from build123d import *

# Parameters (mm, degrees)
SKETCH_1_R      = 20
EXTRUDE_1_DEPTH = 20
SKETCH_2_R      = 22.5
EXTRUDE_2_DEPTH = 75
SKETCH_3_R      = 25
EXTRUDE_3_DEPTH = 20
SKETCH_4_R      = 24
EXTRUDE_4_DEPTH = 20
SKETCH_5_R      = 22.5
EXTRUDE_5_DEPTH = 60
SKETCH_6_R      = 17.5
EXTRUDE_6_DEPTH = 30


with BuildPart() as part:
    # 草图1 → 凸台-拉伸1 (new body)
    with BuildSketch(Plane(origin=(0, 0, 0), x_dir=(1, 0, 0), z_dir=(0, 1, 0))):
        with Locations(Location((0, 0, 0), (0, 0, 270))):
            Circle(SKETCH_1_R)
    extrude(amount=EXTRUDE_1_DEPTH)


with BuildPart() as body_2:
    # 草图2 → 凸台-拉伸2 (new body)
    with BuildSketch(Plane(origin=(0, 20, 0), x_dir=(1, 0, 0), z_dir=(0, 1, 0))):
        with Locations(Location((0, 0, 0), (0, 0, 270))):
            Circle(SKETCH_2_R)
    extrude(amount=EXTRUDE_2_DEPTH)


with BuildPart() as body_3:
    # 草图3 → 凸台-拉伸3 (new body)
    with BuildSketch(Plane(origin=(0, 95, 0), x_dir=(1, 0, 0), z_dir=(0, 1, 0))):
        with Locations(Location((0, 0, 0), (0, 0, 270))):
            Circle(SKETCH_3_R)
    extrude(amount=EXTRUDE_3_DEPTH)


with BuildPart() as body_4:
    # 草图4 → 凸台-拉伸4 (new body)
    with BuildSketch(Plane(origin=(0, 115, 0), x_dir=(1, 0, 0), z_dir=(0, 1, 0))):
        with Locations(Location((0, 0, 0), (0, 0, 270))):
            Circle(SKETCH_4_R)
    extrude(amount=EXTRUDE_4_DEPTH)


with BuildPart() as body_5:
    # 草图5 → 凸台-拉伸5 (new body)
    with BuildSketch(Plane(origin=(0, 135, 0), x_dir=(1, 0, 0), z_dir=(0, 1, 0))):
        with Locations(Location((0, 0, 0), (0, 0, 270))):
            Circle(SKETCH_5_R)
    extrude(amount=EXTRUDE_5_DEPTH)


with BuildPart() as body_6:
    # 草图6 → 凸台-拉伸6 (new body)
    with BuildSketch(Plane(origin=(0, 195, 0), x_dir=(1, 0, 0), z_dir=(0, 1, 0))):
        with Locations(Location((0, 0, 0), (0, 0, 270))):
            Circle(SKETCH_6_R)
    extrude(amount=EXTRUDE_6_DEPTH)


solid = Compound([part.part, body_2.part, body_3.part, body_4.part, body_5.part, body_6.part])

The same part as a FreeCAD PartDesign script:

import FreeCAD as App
import Part
import Sketcher
from FreeCAD import Vector
Q = App.Units.Quantity

doc = App.newDocument("Part")
params = doc.addObject("Spreadsheet::Sheet", "Params")
for row, (alias, value) in enumerate([
    ("sketch1_diameter", "40 mm"),
    ("pad1_length", "20 mm"),
    ("sketch2_diameter", "45 mm"),
    ("pad2_length", "75 mm"),
    ("sketch3_diameter", "50 mm"),
    ("pad3_length", "20 mm"),
    ("sketch4_diameter", "48 mm"),
    ("pad4_length", "20 mm"),
    ("sketch5_diameter", "45 mm"),
    ("pad5_length", "60 mm"),
    ("sketch6_diameter", "35 mm"),
    ("pad6_length", "30 mm"),
], start=1):
    params.set(f"A{row}", alias)
    params.set(f"B{row}", "=" + value)
    params.setAlias(f"B{row}", alias)

body = doc.addObject("PartDesign::Body", "Body")

sketch1 = doc.addObject("Sketcher::SketchObject", "Sketch")
body.addObject(sketch1)
sketch1.AttachmentSupport = (doc.XZ_Plane, [""])
sketch1.MapMode = "FlatFace"
sketch1.addGeometry(Part.Circle(Vector(0, 0, 0), Vector(0, 0, 1), 20), False)
sketch1.addConstraint([
    Sketcher.Constraint("Coincident", 0, 3, -1, 1),
    Sketcher.Constraint("Diameter", 0, Q("40 mm")),
])
sketch1.setExpression("Constraints[1]", "Params.sketch1_diameter")
pad1 = doc.addObject("PartDesign::Pad", "Pad")
body.addObject(pad1)
pad1.Profile = sketch1
pad1.setExpression("Length", "Params.pad1_length")
pad1.Reversed = True
body2 = doc.addObject("PartDesign::Body", "Body001")

sketch2 = doc.addObject("Sketcher::SketchObject", "Sketch001")
body2.addObject(sketch2)
sketch2.AttachmentSupport = (doc.getObject("XZ_Plane001"), [""])
sketch2.MapMode = "FlatFace"
sketch2.AttachmentOffset = App.Placement(Vector(0, 0, -20), App.Rotation())
sketch2.addGeometry(Part.Circle(Vector(0, 0, 0), Vector(0, 0, 1), 22), False)
sketch2.addConstraint([
    Sketcher.Constraint("Coincident", 0, 3, -1, 1),
    Sketcher.Constraint("Diameter", 0, Q("45 mm")),
])
sketch2.setExpression("Constraints[1]", "Params.sketch2_diameter")
pad2 = doc.addObject("PartDesign::Pad", "Pad001")
body2.addObject(pad2)
pad2.Profile = sketch2
pad2.setExpression("Length", "Params.pad2_length")
pad2.Reversed = True
body3 = doc.addObject("PartDesign::Body", "Body002")

sketch3 = doc.addObject("Sketcher::SketchObject", "Sketch002")
body3.addObject(sketch3)
sketch3.AttachmentSupport = (doc.getObject("XZ_Plane002"), [""])
sketch3.MapMode = "FlatFace"
sketch3.AttachmentOffset = App.Placement(Vector(0, 0, -95), App.Rotation())
sketch3.addGeometry(Part.Circle(Vector(0, 0, 0), Vector(0, 0, 1), 25), False)
sketch3.addConstraint([
    Sketcher.Constraint("Coincident", 0, 3, -1, 1),
    Sketcher.Constraint("Diameter", 0, Q("50 mm")),
])
sketch3.setExpression("Constraints[1]", "Params.sketch3_diameter")
pad3 = doc.addObject("PartDesign::Pad", "Pad002")
body3.addObject(pad3)
pad3.Profile = sketch3
pad3.setExpression("Length", "Params.pad3_length")
pad3.Reversed = True
body4 = doc.addObject("PartDesign::Body", "Body003")

sketch4 = doc.addObject("Sketcher::SketchObject", "Sketch003")
body4.addObject(sketch4)
sketch4.AttachmentSupport = (doc.getObject("XZ_Plane003"), [""])
sketch4.MapMode = "FlatFace"
sketch4.AttachmentOffset = App.Placement(Vector(0, 0, -115), App.Rotation())
sketch4.addGeometry(Part.Circle(Vector(0, 0, 0), Vector(0, 0, 1), 24), False)
sketch4.addConstraint([
    Sketcher.Constraint("Coincident", 0, 3, -1, 1),
    Sketcher.Constraint("Diameter", 0, Q("48 mm")),
])
sketch4.setExpression("Constraints[1]", "Params.sketch4_diameter")
pad4 = doc.addObject("PartDesign::Pad", "Pad003")
body4.addObject(pad4)
pad4.Profile = sketch4
pad4.setExpression("Length", "Params.pad4_length")
pad4.Reversed = True
body5 = doc.addObject("PartDesign::Body", "Body004")

sketch5 = doc.addObject("Sketcher::SketchObject", "Sketch004")
body5.addObject(sketch5)
sketch5.AttachmentSupport = (doc.getObject("XZ_Plane004"), [""])
sketch5.MapMode = "FlatFace"
sketch5.AttachmentOffset = App.Placement(Vector(0, 0, -135), App.Rotation())
sketch5.addGeometry(Part.Circle(Vector(0, 0, 0), Vector(0, 0, 1), 22), False)
sketch5.addConstraint([
    Sketcher.Constraint("Coincident", 0, 3, -1, 1),
    Sketcher.Constraint("Diameter", 0, Q("45 mm")),
])
sketch5.setExpression("Constraints[1]", "Params.sketch5_diameter")
pad5 = doc.addObject("PartDesign::Pad", "Pad004")
body5.addObject(pad5)
pad5.Profile = sketch5
pad5.setExpression("Length", "Params.pad5_length")
pad5.Reversed = True
body6 = doc.addObject("PartDesign::Body", "Body005")

sketch6 = doc.addObject("Sketcher::SketchObject", "Sketch005")
body6.addObject(sketch6)
sketch6.AttachmentSupport = (doc.getObject("XZ_Plane005"), [""])
sketch6.MapMode = "FlatFace"
sketch6.AttachmentOffset = App.Placement(Vector(0, 0, -195), App.Rotation())
sketch6.addGeometry(Part.Circle(Vector(0, 0, 0), Vector(0, 0, 1), 18), False)
sketch6.addConstraint([
    Sketcher.Constraint("Coincident", 0, 3, -1, 1),
    Sketcher.Constraint("Diameter", 0, Q("35 mm")),
])
sketch6.setExpression("Constraints[1]", "Params.sketch6_diameter")
pad6 = doc.addObject("PartDesign::Pad", "Pad005")
body6.addObject(pad6)
pad6.Profile = sketch6
pad6.setExpression("Length", "Params.pad6_length")
pad6.Reversed = True

doc.recompute()
